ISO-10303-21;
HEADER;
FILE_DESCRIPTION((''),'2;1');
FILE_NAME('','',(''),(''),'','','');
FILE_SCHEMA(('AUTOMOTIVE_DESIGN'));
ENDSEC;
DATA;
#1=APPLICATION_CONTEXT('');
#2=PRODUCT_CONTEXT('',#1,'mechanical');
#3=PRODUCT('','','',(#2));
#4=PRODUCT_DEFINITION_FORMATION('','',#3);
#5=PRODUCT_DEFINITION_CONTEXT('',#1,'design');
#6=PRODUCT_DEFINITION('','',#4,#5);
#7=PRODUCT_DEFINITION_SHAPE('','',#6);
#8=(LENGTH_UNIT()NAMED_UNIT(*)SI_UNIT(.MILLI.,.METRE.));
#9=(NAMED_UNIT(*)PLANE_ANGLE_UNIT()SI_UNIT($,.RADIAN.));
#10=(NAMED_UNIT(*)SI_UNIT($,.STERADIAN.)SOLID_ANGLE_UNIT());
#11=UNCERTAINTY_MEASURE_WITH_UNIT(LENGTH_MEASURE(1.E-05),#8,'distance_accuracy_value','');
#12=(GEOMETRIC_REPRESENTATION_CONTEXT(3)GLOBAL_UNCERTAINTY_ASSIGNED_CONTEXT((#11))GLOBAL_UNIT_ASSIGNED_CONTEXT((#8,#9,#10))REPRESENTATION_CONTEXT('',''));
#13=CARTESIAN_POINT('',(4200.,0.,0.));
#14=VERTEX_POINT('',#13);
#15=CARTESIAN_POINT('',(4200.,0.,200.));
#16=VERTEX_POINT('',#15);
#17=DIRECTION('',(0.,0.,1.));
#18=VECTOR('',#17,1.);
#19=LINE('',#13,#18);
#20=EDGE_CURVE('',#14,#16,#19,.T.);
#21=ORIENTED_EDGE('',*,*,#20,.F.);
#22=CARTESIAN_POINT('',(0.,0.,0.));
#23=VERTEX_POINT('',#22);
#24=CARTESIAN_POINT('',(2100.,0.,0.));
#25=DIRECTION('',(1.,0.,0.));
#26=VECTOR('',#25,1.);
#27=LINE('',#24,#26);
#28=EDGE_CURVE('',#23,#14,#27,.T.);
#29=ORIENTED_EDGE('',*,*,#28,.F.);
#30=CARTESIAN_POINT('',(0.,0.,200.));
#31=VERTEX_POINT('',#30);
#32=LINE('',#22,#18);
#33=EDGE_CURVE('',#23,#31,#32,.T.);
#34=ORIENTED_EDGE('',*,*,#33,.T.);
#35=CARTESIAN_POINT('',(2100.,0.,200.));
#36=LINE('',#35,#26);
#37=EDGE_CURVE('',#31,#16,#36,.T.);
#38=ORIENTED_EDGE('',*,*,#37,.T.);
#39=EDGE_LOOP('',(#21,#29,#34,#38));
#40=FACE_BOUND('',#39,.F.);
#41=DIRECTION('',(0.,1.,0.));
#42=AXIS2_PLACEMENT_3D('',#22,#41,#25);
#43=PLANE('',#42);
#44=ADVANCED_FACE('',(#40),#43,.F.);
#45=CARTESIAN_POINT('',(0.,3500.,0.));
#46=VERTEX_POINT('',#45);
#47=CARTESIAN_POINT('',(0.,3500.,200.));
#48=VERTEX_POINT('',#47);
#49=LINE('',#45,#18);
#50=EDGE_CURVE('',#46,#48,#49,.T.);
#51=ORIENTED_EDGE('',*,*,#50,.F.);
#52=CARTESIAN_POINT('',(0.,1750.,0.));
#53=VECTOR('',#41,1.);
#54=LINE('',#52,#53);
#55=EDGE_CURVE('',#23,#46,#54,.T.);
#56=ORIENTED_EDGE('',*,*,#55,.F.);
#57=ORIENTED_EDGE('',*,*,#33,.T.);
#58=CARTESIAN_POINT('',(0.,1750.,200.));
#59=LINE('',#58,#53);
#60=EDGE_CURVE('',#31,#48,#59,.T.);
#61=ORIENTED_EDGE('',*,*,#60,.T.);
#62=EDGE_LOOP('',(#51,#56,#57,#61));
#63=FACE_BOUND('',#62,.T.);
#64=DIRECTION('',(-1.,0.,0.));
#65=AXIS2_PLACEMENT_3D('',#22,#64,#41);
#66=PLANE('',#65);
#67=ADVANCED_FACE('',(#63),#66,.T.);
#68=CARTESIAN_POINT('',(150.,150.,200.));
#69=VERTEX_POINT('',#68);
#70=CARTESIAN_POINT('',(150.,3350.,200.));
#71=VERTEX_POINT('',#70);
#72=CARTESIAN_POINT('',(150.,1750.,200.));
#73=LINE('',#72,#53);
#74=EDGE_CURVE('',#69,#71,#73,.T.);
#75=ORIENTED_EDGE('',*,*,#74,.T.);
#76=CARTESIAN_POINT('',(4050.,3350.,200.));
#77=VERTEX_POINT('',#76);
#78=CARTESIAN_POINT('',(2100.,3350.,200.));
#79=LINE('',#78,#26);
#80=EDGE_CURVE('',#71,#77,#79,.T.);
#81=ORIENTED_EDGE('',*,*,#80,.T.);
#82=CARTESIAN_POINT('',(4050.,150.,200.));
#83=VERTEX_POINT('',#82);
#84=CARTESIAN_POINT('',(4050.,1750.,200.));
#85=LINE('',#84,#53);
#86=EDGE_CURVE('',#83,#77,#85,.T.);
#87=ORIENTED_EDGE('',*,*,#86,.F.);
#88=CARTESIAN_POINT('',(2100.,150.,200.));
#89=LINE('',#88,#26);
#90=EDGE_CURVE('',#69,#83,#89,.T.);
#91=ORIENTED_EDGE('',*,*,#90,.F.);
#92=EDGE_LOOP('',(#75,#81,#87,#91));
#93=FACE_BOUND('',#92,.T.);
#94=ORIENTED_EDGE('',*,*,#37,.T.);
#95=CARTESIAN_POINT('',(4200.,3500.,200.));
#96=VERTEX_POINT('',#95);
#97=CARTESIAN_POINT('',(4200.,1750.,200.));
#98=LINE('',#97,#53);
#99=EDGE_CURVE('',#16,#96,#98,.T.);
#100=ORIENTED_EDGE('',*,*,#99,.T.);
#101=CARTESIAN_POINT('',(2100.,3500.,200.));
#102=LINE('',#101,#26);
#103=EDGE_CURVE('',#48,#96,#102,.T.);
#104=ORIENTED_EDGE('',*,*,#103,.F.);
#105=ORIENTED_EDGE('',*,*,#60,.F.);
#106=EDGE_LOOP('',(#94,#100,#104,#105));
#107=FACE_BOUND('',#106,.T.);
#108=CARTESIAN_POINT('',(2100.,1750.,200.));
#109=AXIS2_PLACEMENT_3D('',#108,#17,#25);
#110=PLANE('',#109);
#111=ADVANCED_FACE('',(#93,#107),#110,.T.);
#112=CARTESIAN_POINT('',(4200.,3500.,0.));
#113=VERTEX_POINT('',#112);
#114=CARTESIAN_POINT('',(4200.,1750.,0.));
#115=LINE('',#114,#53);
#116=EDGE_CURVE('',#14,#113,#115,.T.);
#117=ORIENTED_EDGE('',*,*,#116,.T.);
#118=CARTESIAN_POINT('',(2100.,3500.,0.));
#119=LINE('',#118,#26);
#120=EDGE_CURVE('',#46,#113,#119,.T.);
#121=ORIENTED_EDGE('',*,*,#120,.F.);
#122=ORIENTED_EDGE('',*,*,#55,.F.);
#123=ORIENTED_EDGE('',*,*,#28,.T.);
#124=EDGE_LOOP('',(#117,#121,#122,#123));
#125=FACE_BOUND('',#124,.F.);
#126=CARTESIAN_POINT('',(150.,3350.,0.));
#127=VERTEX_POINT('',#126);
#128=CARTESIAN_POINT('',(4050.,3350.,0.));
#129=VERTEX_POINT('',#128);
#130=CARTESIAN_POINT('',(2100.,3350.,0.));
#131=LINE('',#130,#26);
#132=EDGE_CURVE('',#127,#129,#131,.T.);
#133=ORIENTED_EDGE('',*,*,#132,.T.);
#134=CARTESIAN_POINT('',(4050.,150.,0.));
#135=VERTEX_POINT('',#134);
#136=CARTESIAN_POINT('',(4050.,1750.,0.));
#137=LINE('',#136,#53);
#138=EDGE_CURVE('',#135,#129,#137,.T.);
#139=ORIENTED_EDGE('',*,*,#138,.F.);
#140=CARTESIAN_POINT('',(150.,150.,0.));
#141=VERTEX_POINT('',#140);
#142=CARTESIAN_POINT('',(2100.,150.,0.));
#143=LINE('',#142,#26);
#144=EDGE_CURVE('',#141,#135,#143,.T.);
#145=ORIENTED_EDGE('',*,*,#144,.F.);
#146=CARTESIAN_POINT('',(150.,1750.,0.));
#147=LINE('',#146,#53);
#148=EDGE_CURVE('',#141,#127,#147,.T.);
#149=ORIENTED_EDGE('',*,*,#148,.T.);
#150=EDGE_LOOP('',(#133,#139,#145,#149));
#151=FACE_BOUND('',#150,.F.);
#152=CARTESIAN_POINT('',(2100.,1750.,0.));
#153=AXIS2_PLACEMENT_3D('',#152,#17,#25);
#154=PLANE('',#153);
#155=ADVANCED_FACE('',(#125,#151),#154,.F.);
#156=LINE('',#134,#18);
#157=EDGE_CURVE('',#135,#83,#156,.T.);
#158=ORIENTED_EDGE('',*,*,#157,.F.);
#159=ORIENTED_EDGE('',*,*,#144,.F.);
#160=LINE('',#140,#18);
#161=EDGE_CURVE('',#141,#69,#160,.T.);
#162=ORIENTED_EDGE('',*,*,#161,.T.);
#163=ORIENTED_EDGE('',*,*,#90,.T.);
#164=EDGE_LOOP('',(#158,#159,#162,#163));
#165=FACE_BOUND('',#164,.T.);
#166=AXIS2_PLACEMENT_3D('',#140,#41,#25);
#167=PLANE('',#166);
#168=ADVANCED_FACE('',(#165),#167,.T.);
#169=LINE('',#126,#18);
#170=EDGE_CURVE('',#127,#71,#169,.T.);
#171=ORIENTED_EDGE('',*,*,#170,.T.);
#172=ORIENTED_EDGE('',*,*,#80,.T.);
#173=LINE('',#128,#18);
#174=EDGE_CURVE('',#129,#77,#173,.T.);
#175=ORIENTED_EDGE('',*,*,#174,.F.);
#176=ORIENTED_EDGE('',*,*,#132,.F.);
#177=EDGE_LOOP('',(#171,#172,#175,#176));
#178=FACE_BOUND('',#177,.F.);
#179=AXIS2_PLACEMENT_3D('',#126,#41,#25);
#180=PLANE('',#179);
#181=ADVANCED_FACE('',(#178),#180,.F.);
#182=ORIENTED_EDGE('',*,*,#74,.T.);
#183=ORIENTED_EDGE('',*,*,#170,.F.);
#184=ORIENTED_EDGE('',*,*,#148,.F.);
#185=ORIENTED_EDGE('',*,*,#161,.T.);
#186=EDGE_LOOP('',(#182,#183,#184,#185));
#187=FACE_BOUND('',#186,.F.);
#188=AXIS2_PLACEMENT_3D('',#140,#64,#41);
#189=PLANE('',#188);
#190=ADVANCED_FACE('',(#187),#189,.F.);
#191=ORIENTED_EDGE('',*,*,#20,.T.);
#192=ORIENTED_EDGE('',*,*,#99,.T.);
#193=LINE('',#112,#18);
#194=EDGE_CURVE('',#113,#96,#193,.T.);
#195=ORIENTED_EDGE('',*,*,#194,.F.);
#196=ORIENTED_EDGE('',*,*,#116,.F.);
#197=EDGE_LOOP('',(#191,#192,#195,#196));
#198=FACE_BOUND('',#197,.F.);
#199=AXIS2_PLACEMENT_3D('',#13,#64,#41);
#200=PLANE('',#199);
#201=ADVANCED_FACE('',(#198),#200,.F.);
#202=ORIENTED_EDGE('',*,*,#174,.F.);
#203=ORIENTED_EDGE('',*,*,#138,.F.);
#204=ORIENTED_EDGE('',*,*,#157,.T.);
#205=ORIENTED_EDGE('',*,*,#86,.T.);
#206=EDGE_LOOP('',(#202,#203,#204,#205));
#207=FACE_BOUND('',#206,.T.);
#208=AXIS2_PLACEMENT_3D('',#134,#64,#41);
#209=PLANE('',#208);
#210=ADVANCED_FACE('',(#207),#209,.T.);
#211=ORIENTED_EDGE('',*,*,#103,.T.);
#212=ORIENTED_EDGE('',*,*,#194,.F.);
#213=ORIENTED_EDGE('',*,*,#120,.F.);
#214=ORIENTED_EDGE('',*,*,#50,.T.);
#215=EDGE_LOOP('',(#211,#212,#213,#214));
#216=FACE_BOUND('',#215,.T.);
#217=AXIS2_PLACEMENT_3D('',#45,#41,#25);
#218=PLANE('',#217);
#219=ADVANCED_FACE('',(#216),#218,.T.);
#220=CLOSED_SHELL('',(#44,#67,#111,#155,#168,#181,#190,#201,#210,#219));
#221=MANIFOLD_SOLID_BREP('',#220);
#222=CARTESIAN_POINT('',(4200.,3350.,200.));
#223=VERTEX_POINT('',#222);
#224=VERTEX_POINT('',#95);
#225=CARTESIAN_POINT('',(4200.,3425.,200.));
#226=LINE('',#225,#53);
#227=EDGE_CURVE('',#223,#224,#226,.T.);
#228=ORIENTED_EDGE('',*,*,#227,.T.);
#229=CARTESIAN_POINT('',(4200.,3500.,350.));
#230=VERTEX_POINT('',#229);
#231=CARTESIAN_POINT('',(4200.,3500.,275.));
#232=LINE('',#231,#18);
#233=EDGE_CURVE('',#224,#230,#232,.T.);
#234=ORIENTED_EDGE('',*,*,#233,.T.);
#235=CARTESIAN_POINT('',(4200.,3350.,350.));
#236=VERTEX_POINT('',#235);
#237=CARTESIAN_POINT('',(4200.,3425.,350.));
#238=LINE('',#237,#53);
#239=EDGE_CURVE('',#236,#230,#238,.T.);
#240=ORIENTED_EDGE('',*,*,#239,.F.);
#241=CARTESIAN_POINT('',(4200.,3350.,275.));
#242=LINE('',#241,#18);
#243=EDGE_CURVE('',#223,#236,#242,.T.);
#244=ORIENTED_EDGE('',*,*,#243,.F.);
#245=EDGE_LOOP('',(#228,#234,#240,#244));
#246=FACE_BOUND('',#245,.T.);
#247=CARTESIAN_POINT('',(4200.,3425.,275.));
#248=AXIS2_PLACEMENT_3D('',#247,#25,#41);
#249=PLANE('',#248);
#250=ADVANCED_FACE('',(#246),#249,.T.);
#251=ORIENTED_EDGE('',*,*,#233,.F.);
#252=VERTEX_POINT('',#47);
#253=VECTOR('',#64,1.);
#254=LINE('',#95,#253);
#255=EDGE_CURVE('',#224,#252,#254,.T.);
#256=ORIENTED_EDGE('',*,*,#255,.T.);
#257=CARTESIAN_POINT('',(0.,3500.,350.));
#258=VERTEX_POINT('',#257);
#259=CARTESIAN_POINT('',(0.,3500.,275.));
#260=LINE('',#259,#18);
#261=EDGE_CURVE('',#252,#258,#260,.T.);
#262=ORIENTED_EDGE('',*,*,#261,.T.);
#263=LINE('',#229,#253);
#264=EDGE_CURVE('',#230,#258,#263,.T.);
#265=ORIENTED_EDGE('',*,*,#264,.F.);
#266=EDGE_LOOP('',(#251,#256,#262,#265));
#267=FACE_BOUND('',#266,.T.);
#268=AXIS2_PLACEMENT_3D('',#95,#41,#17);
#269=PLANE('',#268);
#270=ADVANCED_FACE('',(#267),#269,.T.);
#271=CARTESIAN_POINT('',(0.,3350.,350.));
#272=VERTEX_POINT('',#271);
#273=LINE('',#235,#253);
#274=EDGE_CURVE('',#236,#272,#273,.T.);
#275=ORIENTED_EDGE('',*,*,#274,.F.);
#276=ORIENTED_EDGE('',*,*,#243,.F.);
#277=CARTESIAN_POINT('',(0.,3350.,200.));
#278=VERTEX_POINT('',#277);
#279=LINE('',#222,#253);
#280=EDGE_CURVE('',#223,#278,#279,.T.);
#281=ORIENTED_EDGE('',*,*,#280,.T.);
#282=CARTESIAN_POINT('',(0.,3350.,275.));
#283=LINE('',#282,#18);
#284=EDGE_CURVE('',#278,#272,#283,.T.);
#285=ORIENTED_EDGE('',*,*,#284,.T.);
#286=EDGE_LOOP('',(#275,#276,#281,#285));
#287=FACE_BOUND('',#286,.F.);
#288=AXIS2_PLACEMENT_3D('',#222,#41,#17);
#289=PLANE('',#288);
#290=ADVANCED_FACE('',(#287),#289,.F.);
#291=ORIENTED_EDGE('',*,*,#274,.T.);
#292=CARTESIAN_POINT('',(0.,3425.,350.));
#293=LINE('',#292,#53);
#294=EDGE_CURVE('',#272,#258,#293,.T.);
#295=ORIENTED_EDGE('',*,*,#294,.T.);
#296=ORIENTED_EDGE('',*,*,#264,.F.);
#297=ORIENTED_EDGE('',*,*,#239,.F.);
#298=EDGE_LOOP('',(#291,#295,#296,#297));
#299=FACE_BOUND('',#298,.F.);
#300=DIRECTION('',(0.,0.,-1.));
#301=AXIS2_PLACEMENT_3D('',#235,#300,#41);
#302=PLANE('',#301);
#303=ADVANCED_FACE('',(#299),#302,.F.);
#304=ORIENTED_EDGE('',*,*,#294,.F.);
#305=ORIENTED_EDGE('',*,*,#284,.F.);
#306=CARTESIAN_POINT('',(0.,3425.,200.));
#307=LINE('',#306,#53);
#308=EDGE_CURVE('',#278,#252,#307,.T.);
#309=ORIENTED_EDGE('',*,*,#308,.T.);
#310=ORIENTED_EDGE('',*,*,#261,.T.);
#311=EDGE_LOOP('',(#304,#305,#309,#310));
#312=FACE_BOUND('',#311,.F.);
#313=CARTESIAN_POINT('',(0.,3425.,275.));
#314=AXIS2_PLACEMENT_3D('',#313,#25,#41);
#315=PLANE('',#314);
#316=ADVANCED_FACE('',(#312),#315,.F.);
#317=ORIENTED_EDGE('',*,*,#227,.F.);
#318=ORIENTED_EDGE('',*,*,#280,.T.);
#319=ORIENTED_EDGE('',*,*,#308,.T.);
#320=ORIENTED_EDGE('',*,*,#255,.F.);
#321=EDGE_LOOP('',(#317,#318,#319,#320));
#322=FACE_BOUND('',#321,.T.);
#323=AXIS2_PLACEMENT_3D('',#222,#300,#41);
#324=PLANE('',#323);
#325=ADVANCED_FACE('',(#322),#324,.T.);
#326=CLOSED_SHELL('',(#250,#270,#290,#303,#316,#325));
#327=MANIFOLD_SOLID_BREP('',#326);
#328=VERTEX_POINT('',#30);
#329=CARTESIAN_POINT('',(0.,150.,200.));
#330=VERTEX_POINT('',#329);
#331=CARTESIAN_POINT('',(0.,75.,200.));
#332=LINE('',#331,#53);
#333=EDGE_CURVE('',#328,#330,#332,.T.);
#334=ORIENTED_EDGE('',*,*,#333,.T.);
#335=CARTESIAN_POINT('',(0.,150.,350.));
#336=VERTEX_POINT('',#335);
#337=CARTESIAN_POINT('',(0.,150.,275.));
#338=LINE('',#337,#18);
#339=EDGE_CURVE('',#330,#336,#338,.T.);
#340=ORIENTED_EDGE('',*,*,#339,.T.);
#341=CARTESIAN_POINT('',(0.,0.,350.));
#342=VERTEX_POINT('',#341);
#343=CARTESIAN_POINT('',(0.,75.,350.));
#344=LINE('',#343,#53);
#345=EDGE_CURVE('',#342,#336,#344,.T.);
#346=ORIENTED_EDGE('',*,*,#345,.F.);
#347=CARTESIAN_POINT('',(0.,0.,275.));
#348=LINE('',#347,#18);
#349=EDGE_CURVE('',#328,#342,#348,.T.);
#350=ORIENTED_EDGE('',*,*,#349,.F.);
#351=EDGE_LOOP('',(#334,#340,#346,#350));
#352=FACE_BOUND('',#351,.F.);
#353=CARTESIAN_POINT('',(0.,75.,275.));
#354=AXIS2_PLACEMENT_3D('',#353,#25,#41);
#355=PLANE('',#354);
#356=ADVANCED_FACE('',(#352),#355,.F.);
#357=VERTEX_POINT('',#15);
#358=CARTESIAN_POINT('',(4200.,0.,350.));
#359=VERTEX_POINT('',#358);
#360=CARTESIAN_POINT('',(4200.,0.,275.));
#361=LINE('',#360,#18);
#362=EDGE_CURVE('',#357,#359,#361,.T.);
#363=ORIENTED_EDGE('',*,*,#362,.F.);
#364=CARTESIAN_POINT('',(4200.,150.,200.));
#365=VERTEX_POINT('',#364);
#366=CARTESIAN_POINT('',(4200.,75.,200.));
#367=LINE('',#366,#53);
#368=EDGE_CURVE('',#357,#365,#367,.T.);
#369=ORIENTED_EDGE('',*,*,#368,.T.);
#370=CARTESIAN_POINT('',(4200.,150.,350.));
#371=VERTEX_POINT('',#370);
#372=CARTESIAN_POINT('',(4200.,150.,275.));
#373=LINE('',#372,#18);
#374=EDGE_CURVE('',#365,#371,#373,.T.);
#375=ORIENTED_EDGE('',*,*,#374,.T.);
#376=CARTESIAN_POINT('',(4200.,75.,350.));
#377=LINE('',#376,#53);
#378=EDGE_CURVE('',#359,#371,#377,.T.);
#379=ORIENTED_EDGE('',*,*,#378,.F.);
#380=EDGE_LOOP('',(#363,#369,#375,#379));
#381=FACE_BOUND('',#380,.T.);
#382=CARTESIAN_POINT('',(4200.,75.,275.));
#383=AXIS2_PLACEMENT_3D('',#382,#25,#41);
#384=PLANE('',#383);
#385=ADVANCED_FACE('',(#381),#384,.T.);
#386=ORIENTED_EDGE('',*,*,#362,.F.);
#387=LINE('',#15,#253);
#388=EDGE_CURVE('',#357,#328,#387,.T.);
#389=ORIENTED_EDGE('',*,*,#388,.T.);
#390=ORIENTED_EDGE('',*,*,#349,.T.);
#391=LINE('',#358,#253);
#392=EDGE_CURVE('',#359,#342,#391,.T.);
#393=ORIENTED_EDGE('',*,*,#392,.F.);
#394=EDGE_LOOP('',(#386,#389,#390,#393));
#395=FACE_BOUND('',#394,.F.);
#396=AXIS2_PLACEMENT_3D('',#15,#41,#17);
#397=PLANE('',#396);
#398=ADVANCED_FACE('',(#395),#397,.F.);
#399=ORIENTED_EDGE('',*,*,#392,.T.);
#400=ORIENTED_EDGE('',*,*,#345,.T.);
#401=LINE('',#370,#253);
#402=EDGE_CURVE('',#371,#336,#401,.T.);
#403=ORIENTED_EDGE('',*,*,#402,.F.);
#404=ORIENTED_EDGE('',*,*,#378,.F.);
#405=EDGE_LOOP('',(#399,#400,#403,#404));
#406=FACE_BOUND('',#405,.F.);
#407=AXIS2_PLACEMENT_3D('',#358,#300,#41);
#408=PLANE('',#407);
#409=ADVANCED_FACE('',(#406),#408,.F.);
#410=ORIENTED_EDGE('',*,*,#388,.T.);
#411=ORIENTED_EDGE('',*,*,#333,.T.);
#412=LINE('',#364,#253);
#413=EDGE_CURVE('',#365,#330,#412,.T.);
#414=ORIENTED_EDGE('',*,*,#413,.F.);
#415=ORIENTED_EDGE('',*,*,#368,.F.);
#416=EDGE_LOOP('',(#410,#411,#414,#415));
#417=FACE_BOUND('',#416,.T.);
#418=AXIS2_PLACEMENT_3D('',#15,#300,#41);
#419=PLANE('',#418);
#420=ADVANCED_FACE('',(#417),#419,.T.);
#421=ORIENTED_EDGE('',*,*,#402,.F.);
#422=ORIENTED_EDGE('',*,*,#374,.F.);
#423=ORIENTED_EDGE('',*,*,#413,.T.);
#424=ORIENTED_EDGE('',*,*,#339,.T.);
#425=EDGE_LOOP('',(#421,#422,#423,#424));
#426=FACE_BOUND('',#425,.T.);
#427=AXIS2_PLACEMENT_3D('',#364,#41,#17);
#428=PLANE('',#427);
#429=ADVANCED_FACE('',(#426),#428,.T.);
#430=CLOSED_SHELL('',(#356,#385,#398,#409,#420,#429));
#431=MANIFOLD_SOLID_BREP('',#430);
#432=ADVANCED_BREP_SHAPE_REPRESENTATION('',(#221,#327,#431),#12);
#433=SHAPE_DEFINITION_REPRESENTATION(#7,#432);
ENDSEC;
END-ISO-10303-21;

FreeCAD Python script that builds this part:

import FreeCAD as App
import Part
import Sketcher

doc = App.newDocument("Part")
body = doc.addObject("PartDesign::Body", "Body")

sketch1 = body.newObject("Sketcher::SketchObject", "Sketch")
sketch1.AttachmentSupport = (doc.getObject("XY_Plane"), [""])
sketch1.MapMode = "FlatFace"
sketch1.addGeometry(Part.LineSegment(App.Vector(0, 3500, 0), App.Vector(0, 0, 0)), False)
sketch1.addGeometry(Part.LineSegment(App.Vector(0, 0, 0), App.Vector(4200, 0, 0)), False)
sketch1.addGeometry(Part.LineSegment(App.Vector(4200, 0, 0), App.Vector(4200, 3500, 0)), False)
sketch1.addGeometry(Part.LineSegment(App.Vector(4200, 3500, 0), App.Vector(0, 3500, 0)), False)
sketch1.addGeometry(Part.LineSegment(App.Vector(4050, 150, 0), App.Vector(150, 150, 0)), False)
sketch1.addGeometry(Part.LineSegment(App.Vector(150, 150, 0), App.Vector(150, 3350, 0)), False)
sketch1.addGeometry(Part.LineSegment(App.Vector(150, 3350, 0), App.Vector(4050, 3350, 0)), False)
sketch1.addGeometry(Part.LineSegment(App.Vector(4050, 3350, 0), App.Vector(4050, 150, 0)), False)
sketch1.addConstraint(Sketcher.Constraint("Coincident", 0, 2, 1, 1))
sketch1.addConstraint(Sketcher.Constraint("Coincident", 1, 2, 2, 1))
sketch1.addConstraint(Sketcher.Constraint("Coincident", 2, 2, 3, 1))
sketch1.addConstraint(Sketcher.Constraint("Coincident", 3, 2, 0, 1))
sketch1.addConstraint(Sketcher.Constraint("Coincident", 4, 2, 5, 1))
sketch1.addConstraint(Sketcher.Constraint("Coincident", 5, 2, 6, 1))
sketch1.addConstraint(Sketcher.Constraint("Coincident", 6, 2, 7, 1))
sketch1.addConstraint(Sketcher.Constraint("Coincident", 7, 2, 4, 1))
sketch1.addConstraint(Sketcher.Constraint("Vertical", 0))
sketch1.addConstraint(Sketcher.Constraint("Horizontal", 1))
sketch1.addConstraint(Sketcher.Constraint("Vertical", 2))
sketch1.addConstraint(Sketcher.Constraint("Horizontal", 3))
sketch1.addConstraint(Sketcher.Constraint("Horizontal", 4))
sketch1.addConstraint(Sketcher.Constraint("Vertical", 5))
sketch1.addConstraint(Sketcher.Constraint("Horizontal", 6))
sketch1.addConstraint(Sketcher.Constraint("Vertical", 7))
sketch1.addConstraint(Sketcher.Constraint("Coincident", 0, 2, -1, 1))
sketch1.addConstraint(Sketcher.Constraint("DistanceX", 1, 1, 1, 2, 4200.0))
sketch1.addConstraint(Sketcher.Constraint("DistanceX", 4, 2, 4, 1, 3900.0))
sketch1.addConstraint(Sketcher.Constraint("DistanceY", 0, 2, 0, 1, 3500.0))
sketch1.addConstraint(Sketcher.Constraint("DistanceY", 5, 1, 5, 2, 3200.0))
sketch1.addConstraint(Sketcher.Constraint("DistanceX", -1, 1, 4, 2, 150.0))
sketch1.addConstraint(Sketcher.Constraint("DistanceY", -1, 1, 4, 2, 150.0))
pad1 = body.newObject("PartDesign::Pad", "Pad")
pad1.Profile = sketch1
pad1.Length = 200
body2 = doc.addObject("PartDesign::Body", "Body001")
body2.AllowCompound = True

sketch2 = body2.newObject("Sketcher::SketchObject", "Sketch001")
sketch2.AttachmentSupport = (doc.getObject("YZ_Plane001"), [""])
sketch2.MapMode = "FlatFace"
sketch2.AttachmentOffset = App.Placement(App.Vector(0, 0, 4200), App.Rotation())
sketch2.addGeometry(Part.LineSegment(App.Vector(0, 350, 0), App.Vector(0, 200, 0)), False)
sketch2.addGeometry(Part.LineSegment(App.Vector(0, 200, 0), App.Vector(150, 200, 0)), False)
sketch2.addGeometry(Part.LineSegment(App.Vector(150, 200, 0), App.Vector(150, 350, 0)), False)
sketch2.addGeometry(Part.LineSegment(App.Vector(150, 350, 0), App.Vector(0, 350, 0)), False)
sketch2.addGeometry(Part.LineSegment(App.Vector(3350, 350, 0), App.Vector(3350, 200, 0)), False)
sketch2.addGeometry(Part.LineSegment(App.Vector(3350, 200, 0), App.Vector(3500, 200, 0)), False)
sketch2.addGeometry(Part.LineSegment(App.Vector(3500, 200, 0), App.Vector(3500, 350, 0)), False)
sketch2.addGeometry(Part.LineSegment(App.Vector(3500, 350, 0), App.Vector(3350, 350, 0)), False)
sketch2.addConstraint(Sketcher.Constraint("Coincident", 0, 2, 1, 1))
sketch2.addConstraint(Sketcher.Constraint("Coincident", 1, 2, 2, 1))
sketch2.addConstraint(Sketcher.Constraint("Coincident", 2, 2, 3, 1))
sketch2.addConstraint(Sketcher.Constraint("Coincident", 3, 2, 0, 1))
sketch2.addConstraint(Sketcher.Constraint("Coincident", 4, 2, 5, 1))
sketch2.addConstraint(Sketcher.Constraint("Coincident", 5, 2, 6, 1))
sketch2.addConstraint(Sketcher.Constraint("Coincident", 6, 2, 7, 1))
sketch2.addConstraint(Sketcher.Constraint("Coincident", 7, 2, 4, 1))
sketch2.addConstraint(Sketcher.Constraint("Vertical", 0))
sketch2.addConstraint(Sketcher.Constraint("Horizontal", 1))
sketch2.addConstraint(Sketcher.Constraint("Vertical", 2))
sketch2.addConstraint(Sketcher.Constraint("Horizontal", 3))
sketch2.addConstraint(Sketcher.Constraint("Vertical", 4))
sketch2.addConstraint(Sketcher.Constraint("Horizontal", 5))
sketch2.addConstraint(Sketcher.Constraint("Vertical", 6))
sketch2.addConstraint(Sketcher.Constraint("Horizontal", 7))
sketch2.addConstraint(Sketcher.Constraint("PointOnObject", 0, 2, -2))
sketch2.addConstraint(Sketcher.Constraint("Horizontal", 1, 2, 4, 2))
sketch2.addConstraint(Sketcher.Constraint("Horizontal", 3, 2, 6, 2))
sketch2.addConstraint(Sketcher.Constraint("Equal", 3, 5))
sketch2.addConstraint(Sketcher.Constraint("Equal", 7, 0))
sketch2.addConstraint(Sketcher.Constraint("DistanceX", 1, 1, 1, 2, 150.0))
sketch2.addConstraint(Sketcher.Constraint("DistanceY", -1, 1, 0, 2, 200.0))
sketch2.addConstraint(Sketcher.Constraint("DistanceX", -1, 1, 4, 2, 3350.0))
pad2 = body2.newObject("PartDesign::Pad", "Pad001")
pad2.Profile = sketch2
pad2.Length = 4200
pad2.Reversed = True

doc.recompute()
